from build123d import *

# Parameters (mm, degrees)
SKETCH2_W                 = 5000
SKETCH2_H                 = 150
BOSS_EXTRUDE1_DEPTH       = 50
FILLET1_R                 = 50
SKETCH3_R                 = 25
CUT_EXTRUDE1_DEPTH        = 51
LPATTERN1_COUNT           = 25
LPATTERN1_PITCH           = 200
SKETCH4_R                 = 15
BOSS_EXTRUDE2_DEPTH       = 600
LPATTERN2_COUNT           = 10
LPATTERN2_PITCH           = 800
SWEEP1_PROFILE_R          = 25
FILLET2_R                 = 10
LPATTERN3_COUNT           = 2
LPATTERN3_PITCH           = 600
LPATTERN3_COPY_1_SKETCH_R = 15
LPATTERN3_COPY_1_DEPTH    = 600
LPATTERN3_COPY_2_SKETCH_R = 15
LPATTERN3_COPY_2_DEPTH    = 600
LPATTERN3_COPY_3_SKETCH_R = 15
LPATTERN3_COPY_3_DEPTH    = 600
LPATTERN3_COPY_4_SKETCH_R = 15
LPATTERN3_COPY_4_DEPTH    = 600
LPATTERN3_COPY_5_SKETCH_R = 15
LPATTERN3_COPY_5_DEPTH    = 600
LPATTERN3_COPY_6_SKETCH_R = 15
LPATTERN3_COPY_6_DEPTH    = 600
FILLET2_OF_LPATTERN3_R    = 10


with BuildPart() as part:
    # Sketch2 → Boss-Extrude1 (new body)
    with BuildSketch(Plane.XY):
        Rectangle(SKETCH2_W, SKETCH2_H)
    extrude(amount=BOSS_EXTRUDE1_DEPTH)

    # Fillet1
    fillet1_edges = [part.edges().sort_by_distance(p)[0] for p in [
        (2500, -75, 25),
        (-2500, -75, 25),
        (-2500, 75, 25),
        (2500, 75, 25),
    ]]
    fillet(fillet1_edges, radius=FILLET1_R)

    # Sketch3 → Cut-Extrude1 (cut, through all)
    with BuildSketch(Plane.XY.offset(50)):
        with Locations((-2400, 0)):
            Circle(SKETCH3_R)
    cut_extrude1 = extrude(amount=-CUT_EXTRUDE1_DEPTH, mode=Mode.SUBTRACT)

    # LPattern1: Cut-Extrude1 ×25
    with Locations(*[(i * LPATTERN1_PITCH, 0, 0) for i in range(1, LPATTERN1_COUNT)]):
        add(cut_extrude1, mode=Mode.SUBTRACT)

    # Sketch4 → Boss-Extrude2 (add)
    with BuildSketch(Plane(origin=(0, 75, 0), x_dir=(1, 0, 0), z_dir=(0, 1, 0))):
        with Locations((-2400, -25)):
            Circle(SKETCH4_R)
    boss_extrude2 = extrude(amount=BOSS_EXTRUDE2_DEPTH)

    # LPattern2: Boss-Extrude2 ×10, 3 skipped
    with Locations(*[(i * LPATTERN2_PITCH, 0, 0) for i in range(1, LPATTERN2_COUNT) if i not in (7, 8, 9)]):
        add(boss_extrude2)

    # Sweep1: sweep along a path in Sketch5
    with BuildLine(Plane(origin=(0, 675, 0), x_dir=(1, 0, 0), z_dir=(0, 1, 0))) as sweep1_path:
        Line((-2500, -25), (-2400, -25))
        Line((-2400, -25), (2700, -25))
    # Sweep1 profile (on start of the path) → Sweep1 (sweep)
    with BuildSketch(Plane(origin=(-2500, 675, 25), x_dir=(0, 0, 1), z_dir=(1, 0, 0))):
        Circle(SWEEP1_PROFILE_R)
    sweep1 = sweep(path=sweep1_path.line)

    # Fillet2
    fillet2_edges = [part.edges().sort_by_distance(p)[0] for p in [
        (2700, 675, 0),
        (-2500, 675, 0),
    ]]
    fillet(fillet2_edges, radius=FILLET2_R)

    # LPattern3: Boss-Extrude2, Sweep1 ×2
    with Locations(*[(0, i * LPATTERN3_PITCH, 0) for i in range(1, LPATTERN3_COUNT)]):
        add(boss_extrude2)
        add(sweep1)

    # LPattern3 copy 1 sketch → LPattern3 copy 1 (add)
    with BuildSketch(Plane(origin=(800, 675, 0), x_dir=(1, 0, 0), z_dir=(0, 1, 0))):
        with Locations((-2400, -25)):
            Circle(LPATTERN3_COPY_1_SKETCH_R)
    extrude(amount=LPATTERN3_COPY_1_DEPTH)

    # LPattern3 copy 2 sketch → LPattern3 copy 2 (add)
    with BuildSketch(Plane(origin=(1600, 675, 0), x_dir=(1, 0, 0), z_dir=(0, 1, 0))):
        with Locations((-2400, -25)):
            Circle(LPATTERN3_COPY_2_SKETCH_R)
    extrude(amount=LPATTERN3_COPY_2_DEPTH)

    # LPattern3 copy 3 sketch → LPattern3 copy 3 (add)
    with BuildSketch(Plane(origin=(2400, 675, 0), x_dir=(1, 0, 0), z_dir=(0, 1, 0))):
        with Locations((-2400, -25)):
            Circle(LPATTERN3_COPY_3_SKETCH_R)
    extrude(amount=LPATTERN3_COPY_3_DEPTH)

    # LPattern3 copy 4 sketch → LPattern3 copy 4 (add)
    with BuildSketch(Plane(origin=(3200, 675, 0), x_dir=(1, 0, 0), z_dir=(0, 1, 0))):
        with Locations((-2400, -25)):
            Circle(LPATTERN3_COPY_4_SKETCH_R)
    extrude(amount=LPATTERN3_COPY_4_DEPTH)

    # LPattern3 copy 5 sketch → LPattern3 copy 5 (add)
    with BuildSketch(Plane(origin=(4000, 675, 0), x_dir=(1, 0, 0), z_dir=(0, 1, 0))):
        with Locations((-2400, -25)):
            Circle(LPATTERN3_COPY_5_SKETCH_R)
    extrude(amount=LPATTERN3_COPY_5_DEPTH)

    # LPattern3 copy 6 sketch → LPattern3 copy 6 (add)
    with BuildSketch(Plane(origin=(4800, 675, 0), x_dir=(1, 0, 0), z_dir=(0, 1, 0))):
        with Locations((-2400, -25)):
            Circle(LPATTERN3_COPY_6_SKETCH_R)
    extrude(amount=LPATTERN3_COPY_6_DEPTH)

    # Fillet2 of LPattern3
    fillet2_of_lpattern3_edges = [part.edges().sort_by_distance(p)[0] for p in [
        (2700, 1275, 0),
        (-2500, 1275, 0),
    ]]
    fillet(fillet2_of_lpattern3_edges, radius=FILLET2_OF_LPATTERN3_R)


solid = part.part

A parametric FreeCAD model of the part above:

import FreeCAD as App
import Part
import Sketcher
from FreeCAD import Vector


def edges_at(feature, points):
    """Names of the edges that pass closest to the given points."""
    edges = feature.Shape.Edges
    near = lambda p: min(range(len(edges)), key=lambda i: edges[i].distToShape(Part.Vertex(*p))[0])
    return sorted({f"Edge{near(p) + 1}" for p in points})


def add_polygon(sketch, points):
    """Adds a closed chain of lines whose ends are joined by coincident constraints."""
    first, n = sketch.GeometryCount, len(points)
    for a, b in zip(points, points[1:] + points[:1]):
        sketch.addGeometry(Part.LineSegment(App.Vector(*a, 0), App.Vector(*b, 0)), False)
    for i in range(n):
        sketch.addConstraint(Sketcher.Constraint("Coincident", first + i, 2, first + (i + 1) % n, 1))

doc = App.newDocument("Part")
body = doc.addObject("PartDesign::Body", "Body")

sketch1 = body.newObject("Sketcher::SketchObject", "Sketch")
sketch1.AttachmentSupport = (doc.getObject("XY_Plane"), [""])
sketch1.MapMode = "FlatFace"
add_polygon(sketch1, [(-2500, 75), (-2500, -75), (2500, -75), (2500, 75)])
sketch1.addConstraint([
    Sketcher.Constraint("Vertical", 0),
    Sketcher.Constraint("Horizontal", 1),
    Sketcher.Constraint("Vertical", 2),
    Sketcher.Constraint("Horizontal", 3),
    Sketcher.Constraint("Symmetric", 0, 2, 2, 2, -1, 1),
    Sketcher.Constraint("DistanceX", 1, 1, 1, 2, 5000.0),
    Sketcher.Constraint("DistanceY", 0, 2, 0, 1, 150.0),
])
pad1 = body.newObject("PartDesign::Pad", "Pad")
pad1.Profile = sketch1
pad1.Length = 50
doc.recompute()

fillet = body.newObject("PartDesign::Fillet", "Fillet")
fillet.Base = (pad1, edges_at(pad1, [
    (2500, -75, 25),
    (-2500, -75, 25),
    (-2500, 75, 25),
    (2500, 75, 25),
]))
fillet.Radius = 50

sketch2 = body.newObject("Sketcher::SketchObject", "Sketch001")
sketch2.AttachmentSupport = (doc.getObject("XY_Plane"), [""])
sketch2.MapMode = "FlatFace"
sketch2.AttachmentOffset = App.Placement(Vector(0, 0, 50), App.Rotation())
sketch2.addGeometry(Part.Circle(Vector(-2400, 0, 0), Vector(0, 0, 1), 25), False)
sketch2.addConstraint([
    Sketcher.Constraint("PointOnObject", 0, 3, -1),
    Sketcher.Constraint("Diameter", 0, 50.0),
    Sketcher.Constraint("DistanceX", 0, 3, -1, 1, 2400.0),
])
pocket1 = body.newObject("PartDesign::Pocket", "Pocket")
pocket1.Profile = sketch2
pocket1.Type = "ThroughAll"
doc.recompute()

linearpattern = body.newObject("PartDesign::LinearPattern", "LinearPattern")
linearpattern.Originals = [pocket1]
linearpattern.Direction = (doc.getObject("X_Axis"), [""])
linearpattern.Mode = "offset"
linearpattern.Offset = 200
linearpattern.Occurrences = 25
body.Tip = linearpattern

sketch3 = body.newObject("Sketcher::SketchObject", "Sketch002")
sketch3.AttachmentSupport = (doc.getObject("XZ_Plane"), [""])
sketch3.MapMode = "FlatFace"
sketch3.AttachmentOffset = App.Placement(Vector(0, 0, -75), App.Rotation())
sketch3.addGeometry(Part.Circle(Vector(-2400, 25, 0), Vector(0, 0, 1), 15), False)
sketch3.addConstraint([
    Sketcher.Constraint("Diameter", 0, 30.0),
    Sketcher.Constraint("DistanceX", 0, 3, -1, 1, 2400.0),
    Sketcher.Constraint("DistanceY", -1, 1, 0, 3, 25.0),
])
pad2 = body.newObject("PartDesign::Pad", "Pad001")
pad2.Profile = sketch3
pad2.Length = 600
pad2.Reversed = True
doc.recompute()

linearpattern2 = body.newObject("PartDesign::LinearPattern", "LinearPattern001")
linearpattern2.Originals = [pad2]
linearpattern2.Direction = (doc.getObject("X_Axis"), [""])
linearpattern2.Mode = "offset"
linearpattern2.Offset = 800
linearpattern2.Occurrences = 7
body.Tip = linearpattern2

sketch4 = body.newObject("Sketcher::SketchObject", "Sketch003")
sketch4.AttachmentSupport = (doc.getObject("YZ_Plane"), [""])
sketch4.MapMode = "FlatFace"
sketch4.AttachmentOffset = App.Placement(Vector(0, 0, -2500), App.Rotation())
sketch4.addGeometry(Part.Circle(Vector(675, 25, 0), Vector(0, 0, 1), 25), False)
sketch4.addConstraint([
    Sketcher.Constraint("Diameter", 0, 50.0),
    Sketcher.Constraint("DistanceX", -1, 1, 0, 3, 675.0),
    Sketcher.Constraint("DistanceY", -1, 1, 0, 3, 25.0),
])

sketch5 = body.newObject("Sketcher::SketchObject", "Sketch004")
sketch5.AttachmentSupport = (doc.getObject("XY_Plane"), [""])
sketch5.MapMode = "FlatFace"
sketch5.AttachmentOffset = App.Placement(Vector(0, 0, 25), App.Rotation())
sketch5.addGeometry(Part.LineSegment(Vector(-2500, 675, 0), Vector(2700, 675, 0)), False)
sketch5.addConstraint([
    Sketcher.Constraint("Horizontal", 0),
    Sketcher.Constraint("DistanceX", 0, 1, 0, 2, 5200.0),
    Sketcher.Constraint("DistanceX", 0, 1, -1, 1, 2500.0),
    Sketcher.Constraint("DistanceY", -1, 1, 0, 1, 675.0),
])
doc.recompute()

additivepipe = body.newObject("PartDesign::AdditivePipe", "AdditivePipe")
additivepipe.Profile = sketch4
additivepipe.Spine = (sketch5, ["Edge1"])
doc.recompute()

fillet2 = body.newObject("PartDesign::Fillet", "Fillet001")
fillet2.Base = (additivepipe, edges_at(additivepipe, [(2700, 675, 0), (-2500, 675, 0)]))
fillet2.Radius = 10
doc.recompute()

linearpattern3 = body.newObject("PartDesign::LinearPattern", "LinearPattern002")
linearpattern3.Originals = [pad2, additivepipe]
linearpattern3.Direction = (doc.getObject("Y_Axis"), [""])
linearpattern3.Mode = "offset"
linearpattern3.Offset = 600
linearpattern3.Occurrences = 2
body.Tip = linearpattern3

sketch6 = body.newObject("Sketcher::SketchObject", "Sketch005")
sketch6.AttachmentSupport = (doc.getObject("XZ_Plane"), [""])
sketch6.MapMode = "FlatFace"
sketch6.AttachmentOffset = App.Placement(Vector(0, 0, -675), App.Rotation())
sketch6.addGeometry(Part.Circle(Vector(-1600, 25, 0), Vector(0, 0, 1), 15), False)
sketch6.addConstraint([
    Sketcher.Constraint("Diameter", 0, 30.0),
    Sketcher.Constraint("DistanceX", 0, 3, -1, 1, 1600.0),
    Sketcher.Constraint("DistanceY", -1, 1, 0, 3, 25.0),
])
pad3 = body.newObject("PartDesign::Pad", "Pad002")
pad3.Profile = sketch6
pad3.Length = 600
pad3.Reversed = True

sketch7 = body.newObject("Sketcher::SketchObject", "Sketch006")
sketch7.AttachmentSupport = (doc.getObject("XZ_Plane"), [""])
sketch7.MapMode = "FlatFace"
sketch7.AttachmentOffset = App.Placement(Vector(0, 0, -675), App.Rotation())
sketch7.addGeometry(Part.Circle(Vector(-800, 25, 0), Vector(0, 0, 1), 15), False)
sketch7.addConstraint([
    Sketcher.Constraint("Diameter", 0, 30.0),
    Sketcher.Constraint("DistanceX", 0, 3, -1, 1, 800.0),
    Sketcher.Constraint("DistanceY", -1, 1, 0, 3, 25.0),
])
pad4 = body.newObject("PartDesign::Pad", "Pad003")
pad4.Profile = sketch7
pad4.Length = 600
pad4.Reversed = True

sketch8 = body.newObject("Sketcher::SketchObject", "Sketch007")
sketch8.AttachmentSupport = (doc.getObject("XZ_Plane"), [""])
sketch8.MapMode = "FlatFace"
sketch8.AttachmentOffset = App.Placement(Vector(0, 0, -675), App.Rotation())
sketch8.addGeometry(Part.Circle(Vector(0, 25, 0), Vector(0, 0, 1), 15), False)
sketch8.addConstraint([
    Sketcher.Constraint("PointOnObject", 0, 3, -2),
    Sketcher.Constraint("Diameter", 0, 30.0),
    Sketcher.Constraint("DistanceY", -1, 1, 0, 3, 25.0),
])
pad5 = body.newObject("PartDesign::Pad", "Pad004")
pad5.Profile = sketch8
pad5.Length = 600
pad5.Reversed = True

sketch9 = body.newObject("Sketcher::SketchObject", "Sketch008")
sketch9.AttachmentSupport = (doc.getObject("XZ_Plane"), [""])
sketch9.MapMode = "FlatFace"
sketch9.AttachmentOffset = App.Placement(Vector(0, 0, -675), App.Rotation())
sketch9.addGeometry(Part.Circle(Vector(800, 25, 0), Vector(0, 0, 1), 15), False)
sketch9.addConstraint([
    Sketcher.Constraint("Diameter", 0, 30.0),
    Sketcher.Constraint("DistanceX", -1, 1, 0, 3, 800.0),
    Sketcher.Constraint("DistanceY", -1, 1, 0, 3, 25.0),
])
pad6 = body.newObject("PartDesign::Pad", "Pad005")
pad6.Profile = sketch9
pad6.Length = 600
pad6.Reversed = True

sketch10 = body.newObject("Sketcher::SketchObject", "Sketch009")
sketch10.AttachmentSupport = (doc.getObject("XZ_Plane"), [""])
sketch10.MapMode = "FlatFace"
sketch10.AttachmentOffset = App.Placement(Vector(0, 0, -675), App.Rotation())
sketch10.addGeometry(Part.Circle(Vector(1600, 25, 0), Vector(0, 0, 1), 15), False)
sketch10.addConstraint([
    Sketcher.Constraint("Diameter", 0, 30.0),
    Sketcher.Constraint("DistanceX", -1, 1, 0, 3, 1600.0),
    Sketcher.Constraint("DistanceY", -1, 1, 0, 3, 25.0),
])
pad7 = body.newObject("PartDesign::Pad", "Pad006")
pad7.Profile = sketch10
pad7.Length = 600
pad7.Reversed = True

sketch11 = body.newObject("Sketcher::SketchObject", "Sketch010")
sketch11.AttachmentSupport = (doc.getObject("XZ_Plane"), [""])
sketch11.MapMode = "FlatFace"
sketch11.AttachmentOffset = App.Placement(Vector(0, 0, -675), App.Rotation())
sketch11.addGeometry(Part.Circle(Vector(2400, 25, 0), Vector(0, 0, 1), 15), False)
sketch11.addConstraint([
    Sketcher.Constraint("Diameter", 0, 30.0),
    Sketcher.Constraint("DistanceX", -1, 1, 0, 3, 2400.0),
    Sketcher.Constraint("DistanceY", -1, 1, 0, 3, 25.0),
])
pad8 = body.newObject("PartDesign::Pad", "Pad007")
pad8.Profile = sketch11
pad8.Length = 600
pad8.Reversed = True
doc.recompute()

fillet3 = body.newObject("PartDesign::Fillet", "Fillet002")
fillet3.Base = (pad8, edges_at(pad8, [(2700, 1275, 0), (-2500, 1275, 0)]))
fillet3.Radius = 10

doc.recompute()
